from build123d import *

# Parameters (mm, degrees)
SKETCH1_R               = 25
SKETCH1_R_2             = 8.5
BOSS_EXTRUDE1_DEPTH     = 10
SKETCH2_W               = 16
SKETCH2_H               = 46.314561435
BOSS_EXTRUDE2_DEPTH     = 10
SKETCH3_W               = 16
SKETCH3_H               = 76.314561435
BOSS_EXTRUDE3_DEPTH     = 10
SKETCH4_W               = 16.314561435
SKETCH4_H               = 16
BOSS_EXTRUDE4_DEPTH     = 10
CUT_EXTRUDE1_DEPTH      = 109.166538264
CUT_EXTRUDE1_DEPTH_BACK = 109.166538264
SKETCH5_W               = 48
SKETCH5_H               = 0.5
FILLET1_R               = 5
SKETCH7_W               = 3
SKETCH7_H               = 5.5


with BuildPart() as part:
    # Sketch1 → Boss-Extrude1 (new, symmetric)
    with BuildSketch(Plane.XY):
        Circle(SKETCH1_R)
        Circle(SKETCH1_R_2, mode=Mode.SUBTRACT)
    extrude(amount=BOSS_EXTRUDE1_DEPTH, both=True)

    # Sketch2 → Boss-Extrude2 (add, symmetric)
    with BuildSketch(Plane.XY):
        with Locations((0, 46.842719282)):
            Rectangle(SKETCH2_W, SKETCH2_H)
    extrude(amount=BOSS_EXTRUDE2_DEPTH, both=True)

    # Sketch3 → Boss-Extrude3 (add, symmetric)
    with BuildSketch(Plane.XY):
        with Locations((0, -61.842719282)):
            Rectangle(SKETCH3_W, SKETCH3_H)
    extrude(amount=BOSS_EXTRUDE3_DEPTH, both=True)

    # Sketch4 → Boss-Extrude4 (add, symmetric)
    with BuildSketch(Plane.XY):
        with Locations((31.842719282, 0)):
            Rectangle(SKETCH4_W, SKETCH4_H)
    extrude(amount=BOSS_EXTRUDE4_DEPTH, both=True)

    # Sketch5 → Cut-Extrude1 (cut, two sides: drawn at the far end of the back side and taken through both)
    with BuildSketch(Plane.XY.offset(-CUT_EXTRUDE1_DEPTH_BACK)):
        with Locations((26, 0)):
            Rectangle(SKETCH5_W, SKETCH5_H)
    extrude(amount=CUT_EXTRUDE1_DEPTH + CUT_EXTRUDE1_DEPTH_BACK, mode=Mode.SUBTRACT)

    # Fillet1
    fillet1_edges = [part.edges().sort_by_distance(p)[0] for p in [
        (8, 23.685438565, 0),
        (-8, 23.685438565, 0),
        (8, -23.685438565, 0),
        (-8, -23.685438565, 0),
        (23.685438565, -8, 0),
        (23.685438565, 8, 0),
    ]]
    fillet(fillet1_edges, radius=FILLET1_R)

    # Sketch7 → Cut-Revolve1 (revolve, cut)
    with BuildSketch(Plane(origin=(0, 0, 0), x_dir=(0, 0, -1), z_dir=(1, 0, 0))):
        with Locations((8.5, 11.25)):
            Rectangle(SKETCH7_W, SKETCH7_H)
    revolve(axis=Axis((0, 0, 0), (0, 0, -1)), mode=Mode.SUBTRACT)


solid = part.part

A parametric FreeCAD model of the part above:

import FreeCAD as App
import Part
import Sketcher
from FreeCAD import Vector


def edges_at(feature, points):
    """Names of the edges that pass closest to the given points."""
    edges = feature.Shape.Edges
    near = lambda p: min(range(len(edges)), key=lambda i: edges[i].distToShape(Part.Vertex(*p))[0])
    return sorted({f"Edge{near(p) + 1}" for p in points})


def add_polygon(sketch, points):
    """Adds a closed chain of lines whose ends are joined by coincident constraints."""
    first, n = sketch.GeometryCount, len(points)
    for a, b in zip(points, points[1:] + points[:1]):
        sketch.addGeometry(Part.LineSegment(App.Vector(*a, 0), App.Vector(*b, 0)), False)
    for i in range(n):
        sketch.addConstraint(Sketcher.Constraint("Coincident", first + i, 2, first + (i + 1) % n, 1))

doc = App.newDocument("Part")
params = doc.addObject("Spreadsheet::Sheet", "Params")
for row, (alias, value) in enumerate([
    ("sketch1_diameter", "50 mm"),
    ("sketch1_diameter2", "17 mm"),
    ("pad1_length", "20 mm"),
    ("sketch2_width", "16 mm"),
    ("pad2_length", "20 mm"),
    ("sketch3_width", "16 mm"),
    ("pad3_length", "20 mm"),
    ("sketch4_height", "16 mm"),
    ("pad4_length", "20 mm"),
    ("sketch5_width", "48 mm"),
    ("sketch5_height", "0.5 mm"),
    ("fillet_radius", "5 mm"),
    ("sketch6_height", "3 mm"),
    ("sketch6_width", "5.5 mm"),
    ("groove_angle", "360 deg"),
], start=1):
    params.set(f"A{row}", alias)
    params.set(f"B{row}", "=" + value)
    params.setAlias(f"B{row}", alias)

body = doc.addObject("PartDesign::Body", "Body")

# Sketch on XY plane
sketch1 = body.newObject("Sketcher::SketchObject", "Sketch")
sketch1.AttachmentSupport = (doc.getObject("XY_Plane"), [""])
sketch1.MapMode = "FlatFace"
sketch1.addGeometry([
    Part.Circle(Vector(0, 0, 0), Vector(0, 0, 1), 25),
    Part.Circle(Vector(0, 0, 0), Vector(0, 0, 1), 8.5),
], False)
sketch1.addConstraint([
    Sketcher.Constraint("Coincident", 0, 3, -1, 1),
    Sketcher.Constraint("Coincident", 1, 3, -1, 1),
    Sketcher.Constraint("Diameter", 0, 50.0),
    Sketcher.Constraint("Diameter", 1, 17.0),
])
sketch1.setExpression("Constraints[2]", "Params.sketch1_diameter")
sketch1.setExpression("Constraints[3]", "Params.sketch1_diameter2")
pad1 = body.newObject("PartDesign::Pad", "Pad")
pad1.Profile = sketch1
pad1.setExpression("Length", "Params.pad1_length")
pad1.Midplane = True

# Sketch on XY plane
sketch2 = body.newObject("Sketcher::SketchObject", "Sketch001")
sketch2.AttachmentSupport = (doc.getObject("XY_Plane"), [""])
sketch2.MapMode = "FlatFace"
add_polygon(sketch2, [(-8, 70), (-8, 23.685439), (8, 23.685439), (8, 70)])  # lines 0-3
sketch2.addConstraint([
    Sketcher.Constraint("Vertical", 0),
    Sketcher.Constraint("Horizontal", 1),
    Sketcher.Constraint("Vertical", 2),
    Sketcher.Constraint("Horizontal", 3),
    Sketcher.Constraint("DistanceX", 1, 1, 1, 2, 16.0),
    Sketcher.Constraint("DistanceX", 0, 2, -1, 1, 8.0),
    Sketcher.Constraint("DistanceY", -1, 1, 2, 2, 70.0),
    Sketcher.Constraint("DistanceY", 0, 2, 0, 1, 46.314561),
])
sketch2.setExpression("Constraints[8]", "Params.sketch2_width")
pad2 = body.newObject("PartDesign::Pad", "Pad001")
pad2.Profile = sketch2
pad2.setExpression("Length", "Params.pad2_length")
pad2.Midplane = True

# Sketch on XY plane
sketch3 = body.newObject("Sketcher::SketchObject", "Sketch002")
sketch3.AttachmentSupport = (doc.getObject("XY_Plane"), [""])
sketch3.MapMode = "FlatFace"
add_polygon(sketch3, [(-8, -23.685439), (-8, -100), (8, -100), (8, -23.685439)])  # lines 0-3
sketch3.addConstraint([
    Sketcher.Constraint("Vertical", 0),
    Sketcher.Constraint("Horizontal", 1),
    Sketcher.Constraint("Vertical", 2),
    Sketcher.Constraint("Horizontal", 3),
    Sketcher.Constraint("DistanceX", 1, 1, 1, 2, 16.0),
    Sketcher.Constraint("DistanceX", 0, 2, -1, 1, 8.0),
    Sketcher.Constraint("DistanceY", 0, 2, -1, 1, 100.0),
    Sketcher.Constraint("DistanceY", 0, 2, 0, 1, 76.314561),
])
sketch3.setExpression("Constraints[8]", "Params.sketch3_width")
pad3 = body.newObject("PartDesign::Pad", "Pad002")
pad3.Profile = sketch3
pad3.setExpression("Length", "Params.pad3_length")
pad3.Midplane = True

# Sketch on XY plane
sketch4 = body.newObject("Sketcher::SketchObject", "Sketch003")
sketch4.AttachmentSupport = (doc.getObject("XY_Plane"), [""])
sketch4.MapMode = "FlatFace"
add_polygon(sketch4, [(23.685439, 8), (23.685439, -8), (40, -8), (40, 8)])  # lines 0-3
sketch4.addConstraint([
    Sketcher.Constraint("Vertical", 0),
    Sketcher.Constraint("Horizontal", 1),
    Sketcher.Constraint("Vertical", 2),
    Sketcher.Constraint("Horizontal", 3),
    Sketcher.Constraint("DistanceY", 0, 2, 0, 1, 16.0),
    Sketcher.Constraint("DistanceY", 0, 2, -1, 1, 8.0),
    Sketcher.Constraint("DistanceX", -1, 1, 1, 2, 40.0),
    Sketcher.Constraint("DistanceX", 1, 1, 1, 2, 16.314561),
])
sketch4.setExpression("Constraints[8]", "Params.sketch4_height")
pad4 = body.newObject("PartDesign::Pad", "Pad003")
pad4.Profile = sketch4
pad4.setExpression("Length", "Params.pad4_length")
pad4.Midplane = True

# Sketch on XY plane
sketch5 = body.newObject("Sketcher::SketchObject", "Sketch004")
sketch5.AttachmentSupport = (doc.getObject("XY_Plane"), [""])
sketch5.MapMode = "FlatFace"
add_polygon(sketch5, [(2, 0.25), (2, -0.25), (50, -0.25), (50, 0.25)])  # lines 0-3
sketch5.addConstraint([
    Sketcher.Constraint("Vertical", 0),
    Sketcher.Constraint("Horizontal", 1),
    Sketcher.Constraint("Vertical", 2),
    Sketcher.Constraint("Horizontal", 3),
    Sketcher.Constraint("DistanceX", 1, 1, 1, 2, 48.0),
    Sketcher.Constraint("DistanceY", 0, 2, 0, 1, 0.5),
    Sketcher.Constraint("DistanceX", -1, 1, 0, 2, 2.0),
    Sketcher.Constraint("DistanceY", 0, 2, -1, 1, 0.25),
])
sketch5.setExpression("Constraints[8]", "Params.sketch5_width")
sketch5.setExpression("Constraints[9]", "Params.sketch5_height")
pocket1 = body.newObject("PartDesign::Pocket", "Pocket")
pocket1.Profile = sketch5
pocket1.Type = "ThroughAll"
pocket1.Midplane = True
doc.recompute()

fillet = body.newObject("PartDesign::Fillet", "Fillet")
fillet.Base = (pocket1, edges_at(pocket1, [
    (8, 23.685, 0),
    (-8, 23.685, 0),
    (8, -23.685, 0),
    (-8, -23.685, 0),
    (23.685, -8, 0),
    (23.685, 8, 0),
]))
fillet.setExpression("Radius", "Params.fillet_radius")

# Sketch on YZ plane
sketch6 = body.newObject("Sketcher::SketchObject", "Sketch005")
sketch6.AttachmentSupport = (doc.getObject("YZ_Plane"), [""])
sketch6.MapMode = "FlatFace"
add_polygon(sketch6, [(14, -7), (8.5, -7), (8.5, -10), (14, -10)])  # lines 0-3
sketch6.addConstraint([
    Sketcher.Constraint("Horizontal", 0),
    Sketcher.Constraint("Vertical", 1),
    Sketcher.Constraint("Horizontal", 2),
    Sketcher.Constraint("Vertical", 3),
    Sketcher.Constraint("DistanceY", 1, 2, 1, 1, 3.0),
    Sketcher.Constraint("DistanceX", 0, 2, 0, 1, 5.5),
    Sketcher.Constraint("DistanceY", 0, 2, -1, 1, 7.0),
    Sketcher.Constraint("DistanceX", -1, 1, 2, 2, 14.0),
])
sketch6.setExpression("Constraints[8]", "Params.sketch6_height")
sketch6.setExpression("Constraints[9]", "Params.sketch6_width")
groove = body.newObject("PartDesign::Groove", "Groove")
groove.Profile = sketch6
groove.ReferenceAxis = (sketch6, ["V_Axis"])
groove.setExpression("Angle", "Params.groove_angle")

doc.recompute()
